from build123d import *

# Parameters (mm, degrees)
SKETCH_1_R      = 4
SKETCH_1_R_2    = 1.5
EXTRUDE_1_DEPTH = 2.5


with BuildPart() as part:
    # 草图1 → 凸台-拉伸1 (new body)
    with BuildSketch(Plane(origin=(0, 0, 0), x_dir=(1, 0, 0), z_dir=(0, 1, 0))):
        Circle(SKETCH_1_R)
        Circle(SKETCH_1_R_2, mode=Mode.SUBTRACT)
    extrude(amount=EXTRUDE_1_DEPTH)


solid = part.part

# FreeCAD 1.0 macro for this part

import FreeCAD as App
import Part
import Sketcher
from FreeCAD import Vector

doc = App.newDocument("Part")
params = doc.addObject("Spreadsheet::Sheet", "Params")
for row, (alias, value) in enumerate([
    ("sketch1_diameter", "8 mm"),
    ("sketch1_diameter2", "3 mm"),
    ("pad1_length", "2.5 mm"),
], start=1):
    params.set(f"A{row}", alias)
    params.set(f"B{row}", "=" + value)
    params.setAlias(f"B{row}", alias)

body = doc.addObject("PartDesign::Body", "Body")

# Sketch on XZ plane
sketch1 = body.newObject("Sketcher::SketchObject", "Sketch")
sketch1.AttachmentSupport = (doc.getObject("XZ_Plane"), [""])
sketch1.MapMode = "FlatFace"
sketch1.addGeometry([
    Part.Circle(Vector(0, 0, 0), Vector(0, 0, 1), 4),
    Part.Circle(Vector(0, 0, 0), Vector(0, 0, 1), 1.5),
], False)
sketch1.addConstraint([
    Sketcher.Constraint("Coincident", 0, 3, -1, 1),
    Sketcher.Constraint("Coincident", 1, 3, -1, 1),
    Sketcher.Constraint("Diameter", 0, 8.0),
    Sketcher.Constraint("Diameter", 1, 3.0),
])
sketch1.setExpression("Constraints[2]", "Params.sketch1_diameter")
sketch1.setExpression("Constraints[3]", "Params.sketch1_diameter2")
pad1 = body.newObject("PartDesign::Pad", "Pad")
pad1.Profile = sketch1
pad1.setExpression("Length", "Params.pad1_length")
pad1.Reversed = True

doc.recompute()
